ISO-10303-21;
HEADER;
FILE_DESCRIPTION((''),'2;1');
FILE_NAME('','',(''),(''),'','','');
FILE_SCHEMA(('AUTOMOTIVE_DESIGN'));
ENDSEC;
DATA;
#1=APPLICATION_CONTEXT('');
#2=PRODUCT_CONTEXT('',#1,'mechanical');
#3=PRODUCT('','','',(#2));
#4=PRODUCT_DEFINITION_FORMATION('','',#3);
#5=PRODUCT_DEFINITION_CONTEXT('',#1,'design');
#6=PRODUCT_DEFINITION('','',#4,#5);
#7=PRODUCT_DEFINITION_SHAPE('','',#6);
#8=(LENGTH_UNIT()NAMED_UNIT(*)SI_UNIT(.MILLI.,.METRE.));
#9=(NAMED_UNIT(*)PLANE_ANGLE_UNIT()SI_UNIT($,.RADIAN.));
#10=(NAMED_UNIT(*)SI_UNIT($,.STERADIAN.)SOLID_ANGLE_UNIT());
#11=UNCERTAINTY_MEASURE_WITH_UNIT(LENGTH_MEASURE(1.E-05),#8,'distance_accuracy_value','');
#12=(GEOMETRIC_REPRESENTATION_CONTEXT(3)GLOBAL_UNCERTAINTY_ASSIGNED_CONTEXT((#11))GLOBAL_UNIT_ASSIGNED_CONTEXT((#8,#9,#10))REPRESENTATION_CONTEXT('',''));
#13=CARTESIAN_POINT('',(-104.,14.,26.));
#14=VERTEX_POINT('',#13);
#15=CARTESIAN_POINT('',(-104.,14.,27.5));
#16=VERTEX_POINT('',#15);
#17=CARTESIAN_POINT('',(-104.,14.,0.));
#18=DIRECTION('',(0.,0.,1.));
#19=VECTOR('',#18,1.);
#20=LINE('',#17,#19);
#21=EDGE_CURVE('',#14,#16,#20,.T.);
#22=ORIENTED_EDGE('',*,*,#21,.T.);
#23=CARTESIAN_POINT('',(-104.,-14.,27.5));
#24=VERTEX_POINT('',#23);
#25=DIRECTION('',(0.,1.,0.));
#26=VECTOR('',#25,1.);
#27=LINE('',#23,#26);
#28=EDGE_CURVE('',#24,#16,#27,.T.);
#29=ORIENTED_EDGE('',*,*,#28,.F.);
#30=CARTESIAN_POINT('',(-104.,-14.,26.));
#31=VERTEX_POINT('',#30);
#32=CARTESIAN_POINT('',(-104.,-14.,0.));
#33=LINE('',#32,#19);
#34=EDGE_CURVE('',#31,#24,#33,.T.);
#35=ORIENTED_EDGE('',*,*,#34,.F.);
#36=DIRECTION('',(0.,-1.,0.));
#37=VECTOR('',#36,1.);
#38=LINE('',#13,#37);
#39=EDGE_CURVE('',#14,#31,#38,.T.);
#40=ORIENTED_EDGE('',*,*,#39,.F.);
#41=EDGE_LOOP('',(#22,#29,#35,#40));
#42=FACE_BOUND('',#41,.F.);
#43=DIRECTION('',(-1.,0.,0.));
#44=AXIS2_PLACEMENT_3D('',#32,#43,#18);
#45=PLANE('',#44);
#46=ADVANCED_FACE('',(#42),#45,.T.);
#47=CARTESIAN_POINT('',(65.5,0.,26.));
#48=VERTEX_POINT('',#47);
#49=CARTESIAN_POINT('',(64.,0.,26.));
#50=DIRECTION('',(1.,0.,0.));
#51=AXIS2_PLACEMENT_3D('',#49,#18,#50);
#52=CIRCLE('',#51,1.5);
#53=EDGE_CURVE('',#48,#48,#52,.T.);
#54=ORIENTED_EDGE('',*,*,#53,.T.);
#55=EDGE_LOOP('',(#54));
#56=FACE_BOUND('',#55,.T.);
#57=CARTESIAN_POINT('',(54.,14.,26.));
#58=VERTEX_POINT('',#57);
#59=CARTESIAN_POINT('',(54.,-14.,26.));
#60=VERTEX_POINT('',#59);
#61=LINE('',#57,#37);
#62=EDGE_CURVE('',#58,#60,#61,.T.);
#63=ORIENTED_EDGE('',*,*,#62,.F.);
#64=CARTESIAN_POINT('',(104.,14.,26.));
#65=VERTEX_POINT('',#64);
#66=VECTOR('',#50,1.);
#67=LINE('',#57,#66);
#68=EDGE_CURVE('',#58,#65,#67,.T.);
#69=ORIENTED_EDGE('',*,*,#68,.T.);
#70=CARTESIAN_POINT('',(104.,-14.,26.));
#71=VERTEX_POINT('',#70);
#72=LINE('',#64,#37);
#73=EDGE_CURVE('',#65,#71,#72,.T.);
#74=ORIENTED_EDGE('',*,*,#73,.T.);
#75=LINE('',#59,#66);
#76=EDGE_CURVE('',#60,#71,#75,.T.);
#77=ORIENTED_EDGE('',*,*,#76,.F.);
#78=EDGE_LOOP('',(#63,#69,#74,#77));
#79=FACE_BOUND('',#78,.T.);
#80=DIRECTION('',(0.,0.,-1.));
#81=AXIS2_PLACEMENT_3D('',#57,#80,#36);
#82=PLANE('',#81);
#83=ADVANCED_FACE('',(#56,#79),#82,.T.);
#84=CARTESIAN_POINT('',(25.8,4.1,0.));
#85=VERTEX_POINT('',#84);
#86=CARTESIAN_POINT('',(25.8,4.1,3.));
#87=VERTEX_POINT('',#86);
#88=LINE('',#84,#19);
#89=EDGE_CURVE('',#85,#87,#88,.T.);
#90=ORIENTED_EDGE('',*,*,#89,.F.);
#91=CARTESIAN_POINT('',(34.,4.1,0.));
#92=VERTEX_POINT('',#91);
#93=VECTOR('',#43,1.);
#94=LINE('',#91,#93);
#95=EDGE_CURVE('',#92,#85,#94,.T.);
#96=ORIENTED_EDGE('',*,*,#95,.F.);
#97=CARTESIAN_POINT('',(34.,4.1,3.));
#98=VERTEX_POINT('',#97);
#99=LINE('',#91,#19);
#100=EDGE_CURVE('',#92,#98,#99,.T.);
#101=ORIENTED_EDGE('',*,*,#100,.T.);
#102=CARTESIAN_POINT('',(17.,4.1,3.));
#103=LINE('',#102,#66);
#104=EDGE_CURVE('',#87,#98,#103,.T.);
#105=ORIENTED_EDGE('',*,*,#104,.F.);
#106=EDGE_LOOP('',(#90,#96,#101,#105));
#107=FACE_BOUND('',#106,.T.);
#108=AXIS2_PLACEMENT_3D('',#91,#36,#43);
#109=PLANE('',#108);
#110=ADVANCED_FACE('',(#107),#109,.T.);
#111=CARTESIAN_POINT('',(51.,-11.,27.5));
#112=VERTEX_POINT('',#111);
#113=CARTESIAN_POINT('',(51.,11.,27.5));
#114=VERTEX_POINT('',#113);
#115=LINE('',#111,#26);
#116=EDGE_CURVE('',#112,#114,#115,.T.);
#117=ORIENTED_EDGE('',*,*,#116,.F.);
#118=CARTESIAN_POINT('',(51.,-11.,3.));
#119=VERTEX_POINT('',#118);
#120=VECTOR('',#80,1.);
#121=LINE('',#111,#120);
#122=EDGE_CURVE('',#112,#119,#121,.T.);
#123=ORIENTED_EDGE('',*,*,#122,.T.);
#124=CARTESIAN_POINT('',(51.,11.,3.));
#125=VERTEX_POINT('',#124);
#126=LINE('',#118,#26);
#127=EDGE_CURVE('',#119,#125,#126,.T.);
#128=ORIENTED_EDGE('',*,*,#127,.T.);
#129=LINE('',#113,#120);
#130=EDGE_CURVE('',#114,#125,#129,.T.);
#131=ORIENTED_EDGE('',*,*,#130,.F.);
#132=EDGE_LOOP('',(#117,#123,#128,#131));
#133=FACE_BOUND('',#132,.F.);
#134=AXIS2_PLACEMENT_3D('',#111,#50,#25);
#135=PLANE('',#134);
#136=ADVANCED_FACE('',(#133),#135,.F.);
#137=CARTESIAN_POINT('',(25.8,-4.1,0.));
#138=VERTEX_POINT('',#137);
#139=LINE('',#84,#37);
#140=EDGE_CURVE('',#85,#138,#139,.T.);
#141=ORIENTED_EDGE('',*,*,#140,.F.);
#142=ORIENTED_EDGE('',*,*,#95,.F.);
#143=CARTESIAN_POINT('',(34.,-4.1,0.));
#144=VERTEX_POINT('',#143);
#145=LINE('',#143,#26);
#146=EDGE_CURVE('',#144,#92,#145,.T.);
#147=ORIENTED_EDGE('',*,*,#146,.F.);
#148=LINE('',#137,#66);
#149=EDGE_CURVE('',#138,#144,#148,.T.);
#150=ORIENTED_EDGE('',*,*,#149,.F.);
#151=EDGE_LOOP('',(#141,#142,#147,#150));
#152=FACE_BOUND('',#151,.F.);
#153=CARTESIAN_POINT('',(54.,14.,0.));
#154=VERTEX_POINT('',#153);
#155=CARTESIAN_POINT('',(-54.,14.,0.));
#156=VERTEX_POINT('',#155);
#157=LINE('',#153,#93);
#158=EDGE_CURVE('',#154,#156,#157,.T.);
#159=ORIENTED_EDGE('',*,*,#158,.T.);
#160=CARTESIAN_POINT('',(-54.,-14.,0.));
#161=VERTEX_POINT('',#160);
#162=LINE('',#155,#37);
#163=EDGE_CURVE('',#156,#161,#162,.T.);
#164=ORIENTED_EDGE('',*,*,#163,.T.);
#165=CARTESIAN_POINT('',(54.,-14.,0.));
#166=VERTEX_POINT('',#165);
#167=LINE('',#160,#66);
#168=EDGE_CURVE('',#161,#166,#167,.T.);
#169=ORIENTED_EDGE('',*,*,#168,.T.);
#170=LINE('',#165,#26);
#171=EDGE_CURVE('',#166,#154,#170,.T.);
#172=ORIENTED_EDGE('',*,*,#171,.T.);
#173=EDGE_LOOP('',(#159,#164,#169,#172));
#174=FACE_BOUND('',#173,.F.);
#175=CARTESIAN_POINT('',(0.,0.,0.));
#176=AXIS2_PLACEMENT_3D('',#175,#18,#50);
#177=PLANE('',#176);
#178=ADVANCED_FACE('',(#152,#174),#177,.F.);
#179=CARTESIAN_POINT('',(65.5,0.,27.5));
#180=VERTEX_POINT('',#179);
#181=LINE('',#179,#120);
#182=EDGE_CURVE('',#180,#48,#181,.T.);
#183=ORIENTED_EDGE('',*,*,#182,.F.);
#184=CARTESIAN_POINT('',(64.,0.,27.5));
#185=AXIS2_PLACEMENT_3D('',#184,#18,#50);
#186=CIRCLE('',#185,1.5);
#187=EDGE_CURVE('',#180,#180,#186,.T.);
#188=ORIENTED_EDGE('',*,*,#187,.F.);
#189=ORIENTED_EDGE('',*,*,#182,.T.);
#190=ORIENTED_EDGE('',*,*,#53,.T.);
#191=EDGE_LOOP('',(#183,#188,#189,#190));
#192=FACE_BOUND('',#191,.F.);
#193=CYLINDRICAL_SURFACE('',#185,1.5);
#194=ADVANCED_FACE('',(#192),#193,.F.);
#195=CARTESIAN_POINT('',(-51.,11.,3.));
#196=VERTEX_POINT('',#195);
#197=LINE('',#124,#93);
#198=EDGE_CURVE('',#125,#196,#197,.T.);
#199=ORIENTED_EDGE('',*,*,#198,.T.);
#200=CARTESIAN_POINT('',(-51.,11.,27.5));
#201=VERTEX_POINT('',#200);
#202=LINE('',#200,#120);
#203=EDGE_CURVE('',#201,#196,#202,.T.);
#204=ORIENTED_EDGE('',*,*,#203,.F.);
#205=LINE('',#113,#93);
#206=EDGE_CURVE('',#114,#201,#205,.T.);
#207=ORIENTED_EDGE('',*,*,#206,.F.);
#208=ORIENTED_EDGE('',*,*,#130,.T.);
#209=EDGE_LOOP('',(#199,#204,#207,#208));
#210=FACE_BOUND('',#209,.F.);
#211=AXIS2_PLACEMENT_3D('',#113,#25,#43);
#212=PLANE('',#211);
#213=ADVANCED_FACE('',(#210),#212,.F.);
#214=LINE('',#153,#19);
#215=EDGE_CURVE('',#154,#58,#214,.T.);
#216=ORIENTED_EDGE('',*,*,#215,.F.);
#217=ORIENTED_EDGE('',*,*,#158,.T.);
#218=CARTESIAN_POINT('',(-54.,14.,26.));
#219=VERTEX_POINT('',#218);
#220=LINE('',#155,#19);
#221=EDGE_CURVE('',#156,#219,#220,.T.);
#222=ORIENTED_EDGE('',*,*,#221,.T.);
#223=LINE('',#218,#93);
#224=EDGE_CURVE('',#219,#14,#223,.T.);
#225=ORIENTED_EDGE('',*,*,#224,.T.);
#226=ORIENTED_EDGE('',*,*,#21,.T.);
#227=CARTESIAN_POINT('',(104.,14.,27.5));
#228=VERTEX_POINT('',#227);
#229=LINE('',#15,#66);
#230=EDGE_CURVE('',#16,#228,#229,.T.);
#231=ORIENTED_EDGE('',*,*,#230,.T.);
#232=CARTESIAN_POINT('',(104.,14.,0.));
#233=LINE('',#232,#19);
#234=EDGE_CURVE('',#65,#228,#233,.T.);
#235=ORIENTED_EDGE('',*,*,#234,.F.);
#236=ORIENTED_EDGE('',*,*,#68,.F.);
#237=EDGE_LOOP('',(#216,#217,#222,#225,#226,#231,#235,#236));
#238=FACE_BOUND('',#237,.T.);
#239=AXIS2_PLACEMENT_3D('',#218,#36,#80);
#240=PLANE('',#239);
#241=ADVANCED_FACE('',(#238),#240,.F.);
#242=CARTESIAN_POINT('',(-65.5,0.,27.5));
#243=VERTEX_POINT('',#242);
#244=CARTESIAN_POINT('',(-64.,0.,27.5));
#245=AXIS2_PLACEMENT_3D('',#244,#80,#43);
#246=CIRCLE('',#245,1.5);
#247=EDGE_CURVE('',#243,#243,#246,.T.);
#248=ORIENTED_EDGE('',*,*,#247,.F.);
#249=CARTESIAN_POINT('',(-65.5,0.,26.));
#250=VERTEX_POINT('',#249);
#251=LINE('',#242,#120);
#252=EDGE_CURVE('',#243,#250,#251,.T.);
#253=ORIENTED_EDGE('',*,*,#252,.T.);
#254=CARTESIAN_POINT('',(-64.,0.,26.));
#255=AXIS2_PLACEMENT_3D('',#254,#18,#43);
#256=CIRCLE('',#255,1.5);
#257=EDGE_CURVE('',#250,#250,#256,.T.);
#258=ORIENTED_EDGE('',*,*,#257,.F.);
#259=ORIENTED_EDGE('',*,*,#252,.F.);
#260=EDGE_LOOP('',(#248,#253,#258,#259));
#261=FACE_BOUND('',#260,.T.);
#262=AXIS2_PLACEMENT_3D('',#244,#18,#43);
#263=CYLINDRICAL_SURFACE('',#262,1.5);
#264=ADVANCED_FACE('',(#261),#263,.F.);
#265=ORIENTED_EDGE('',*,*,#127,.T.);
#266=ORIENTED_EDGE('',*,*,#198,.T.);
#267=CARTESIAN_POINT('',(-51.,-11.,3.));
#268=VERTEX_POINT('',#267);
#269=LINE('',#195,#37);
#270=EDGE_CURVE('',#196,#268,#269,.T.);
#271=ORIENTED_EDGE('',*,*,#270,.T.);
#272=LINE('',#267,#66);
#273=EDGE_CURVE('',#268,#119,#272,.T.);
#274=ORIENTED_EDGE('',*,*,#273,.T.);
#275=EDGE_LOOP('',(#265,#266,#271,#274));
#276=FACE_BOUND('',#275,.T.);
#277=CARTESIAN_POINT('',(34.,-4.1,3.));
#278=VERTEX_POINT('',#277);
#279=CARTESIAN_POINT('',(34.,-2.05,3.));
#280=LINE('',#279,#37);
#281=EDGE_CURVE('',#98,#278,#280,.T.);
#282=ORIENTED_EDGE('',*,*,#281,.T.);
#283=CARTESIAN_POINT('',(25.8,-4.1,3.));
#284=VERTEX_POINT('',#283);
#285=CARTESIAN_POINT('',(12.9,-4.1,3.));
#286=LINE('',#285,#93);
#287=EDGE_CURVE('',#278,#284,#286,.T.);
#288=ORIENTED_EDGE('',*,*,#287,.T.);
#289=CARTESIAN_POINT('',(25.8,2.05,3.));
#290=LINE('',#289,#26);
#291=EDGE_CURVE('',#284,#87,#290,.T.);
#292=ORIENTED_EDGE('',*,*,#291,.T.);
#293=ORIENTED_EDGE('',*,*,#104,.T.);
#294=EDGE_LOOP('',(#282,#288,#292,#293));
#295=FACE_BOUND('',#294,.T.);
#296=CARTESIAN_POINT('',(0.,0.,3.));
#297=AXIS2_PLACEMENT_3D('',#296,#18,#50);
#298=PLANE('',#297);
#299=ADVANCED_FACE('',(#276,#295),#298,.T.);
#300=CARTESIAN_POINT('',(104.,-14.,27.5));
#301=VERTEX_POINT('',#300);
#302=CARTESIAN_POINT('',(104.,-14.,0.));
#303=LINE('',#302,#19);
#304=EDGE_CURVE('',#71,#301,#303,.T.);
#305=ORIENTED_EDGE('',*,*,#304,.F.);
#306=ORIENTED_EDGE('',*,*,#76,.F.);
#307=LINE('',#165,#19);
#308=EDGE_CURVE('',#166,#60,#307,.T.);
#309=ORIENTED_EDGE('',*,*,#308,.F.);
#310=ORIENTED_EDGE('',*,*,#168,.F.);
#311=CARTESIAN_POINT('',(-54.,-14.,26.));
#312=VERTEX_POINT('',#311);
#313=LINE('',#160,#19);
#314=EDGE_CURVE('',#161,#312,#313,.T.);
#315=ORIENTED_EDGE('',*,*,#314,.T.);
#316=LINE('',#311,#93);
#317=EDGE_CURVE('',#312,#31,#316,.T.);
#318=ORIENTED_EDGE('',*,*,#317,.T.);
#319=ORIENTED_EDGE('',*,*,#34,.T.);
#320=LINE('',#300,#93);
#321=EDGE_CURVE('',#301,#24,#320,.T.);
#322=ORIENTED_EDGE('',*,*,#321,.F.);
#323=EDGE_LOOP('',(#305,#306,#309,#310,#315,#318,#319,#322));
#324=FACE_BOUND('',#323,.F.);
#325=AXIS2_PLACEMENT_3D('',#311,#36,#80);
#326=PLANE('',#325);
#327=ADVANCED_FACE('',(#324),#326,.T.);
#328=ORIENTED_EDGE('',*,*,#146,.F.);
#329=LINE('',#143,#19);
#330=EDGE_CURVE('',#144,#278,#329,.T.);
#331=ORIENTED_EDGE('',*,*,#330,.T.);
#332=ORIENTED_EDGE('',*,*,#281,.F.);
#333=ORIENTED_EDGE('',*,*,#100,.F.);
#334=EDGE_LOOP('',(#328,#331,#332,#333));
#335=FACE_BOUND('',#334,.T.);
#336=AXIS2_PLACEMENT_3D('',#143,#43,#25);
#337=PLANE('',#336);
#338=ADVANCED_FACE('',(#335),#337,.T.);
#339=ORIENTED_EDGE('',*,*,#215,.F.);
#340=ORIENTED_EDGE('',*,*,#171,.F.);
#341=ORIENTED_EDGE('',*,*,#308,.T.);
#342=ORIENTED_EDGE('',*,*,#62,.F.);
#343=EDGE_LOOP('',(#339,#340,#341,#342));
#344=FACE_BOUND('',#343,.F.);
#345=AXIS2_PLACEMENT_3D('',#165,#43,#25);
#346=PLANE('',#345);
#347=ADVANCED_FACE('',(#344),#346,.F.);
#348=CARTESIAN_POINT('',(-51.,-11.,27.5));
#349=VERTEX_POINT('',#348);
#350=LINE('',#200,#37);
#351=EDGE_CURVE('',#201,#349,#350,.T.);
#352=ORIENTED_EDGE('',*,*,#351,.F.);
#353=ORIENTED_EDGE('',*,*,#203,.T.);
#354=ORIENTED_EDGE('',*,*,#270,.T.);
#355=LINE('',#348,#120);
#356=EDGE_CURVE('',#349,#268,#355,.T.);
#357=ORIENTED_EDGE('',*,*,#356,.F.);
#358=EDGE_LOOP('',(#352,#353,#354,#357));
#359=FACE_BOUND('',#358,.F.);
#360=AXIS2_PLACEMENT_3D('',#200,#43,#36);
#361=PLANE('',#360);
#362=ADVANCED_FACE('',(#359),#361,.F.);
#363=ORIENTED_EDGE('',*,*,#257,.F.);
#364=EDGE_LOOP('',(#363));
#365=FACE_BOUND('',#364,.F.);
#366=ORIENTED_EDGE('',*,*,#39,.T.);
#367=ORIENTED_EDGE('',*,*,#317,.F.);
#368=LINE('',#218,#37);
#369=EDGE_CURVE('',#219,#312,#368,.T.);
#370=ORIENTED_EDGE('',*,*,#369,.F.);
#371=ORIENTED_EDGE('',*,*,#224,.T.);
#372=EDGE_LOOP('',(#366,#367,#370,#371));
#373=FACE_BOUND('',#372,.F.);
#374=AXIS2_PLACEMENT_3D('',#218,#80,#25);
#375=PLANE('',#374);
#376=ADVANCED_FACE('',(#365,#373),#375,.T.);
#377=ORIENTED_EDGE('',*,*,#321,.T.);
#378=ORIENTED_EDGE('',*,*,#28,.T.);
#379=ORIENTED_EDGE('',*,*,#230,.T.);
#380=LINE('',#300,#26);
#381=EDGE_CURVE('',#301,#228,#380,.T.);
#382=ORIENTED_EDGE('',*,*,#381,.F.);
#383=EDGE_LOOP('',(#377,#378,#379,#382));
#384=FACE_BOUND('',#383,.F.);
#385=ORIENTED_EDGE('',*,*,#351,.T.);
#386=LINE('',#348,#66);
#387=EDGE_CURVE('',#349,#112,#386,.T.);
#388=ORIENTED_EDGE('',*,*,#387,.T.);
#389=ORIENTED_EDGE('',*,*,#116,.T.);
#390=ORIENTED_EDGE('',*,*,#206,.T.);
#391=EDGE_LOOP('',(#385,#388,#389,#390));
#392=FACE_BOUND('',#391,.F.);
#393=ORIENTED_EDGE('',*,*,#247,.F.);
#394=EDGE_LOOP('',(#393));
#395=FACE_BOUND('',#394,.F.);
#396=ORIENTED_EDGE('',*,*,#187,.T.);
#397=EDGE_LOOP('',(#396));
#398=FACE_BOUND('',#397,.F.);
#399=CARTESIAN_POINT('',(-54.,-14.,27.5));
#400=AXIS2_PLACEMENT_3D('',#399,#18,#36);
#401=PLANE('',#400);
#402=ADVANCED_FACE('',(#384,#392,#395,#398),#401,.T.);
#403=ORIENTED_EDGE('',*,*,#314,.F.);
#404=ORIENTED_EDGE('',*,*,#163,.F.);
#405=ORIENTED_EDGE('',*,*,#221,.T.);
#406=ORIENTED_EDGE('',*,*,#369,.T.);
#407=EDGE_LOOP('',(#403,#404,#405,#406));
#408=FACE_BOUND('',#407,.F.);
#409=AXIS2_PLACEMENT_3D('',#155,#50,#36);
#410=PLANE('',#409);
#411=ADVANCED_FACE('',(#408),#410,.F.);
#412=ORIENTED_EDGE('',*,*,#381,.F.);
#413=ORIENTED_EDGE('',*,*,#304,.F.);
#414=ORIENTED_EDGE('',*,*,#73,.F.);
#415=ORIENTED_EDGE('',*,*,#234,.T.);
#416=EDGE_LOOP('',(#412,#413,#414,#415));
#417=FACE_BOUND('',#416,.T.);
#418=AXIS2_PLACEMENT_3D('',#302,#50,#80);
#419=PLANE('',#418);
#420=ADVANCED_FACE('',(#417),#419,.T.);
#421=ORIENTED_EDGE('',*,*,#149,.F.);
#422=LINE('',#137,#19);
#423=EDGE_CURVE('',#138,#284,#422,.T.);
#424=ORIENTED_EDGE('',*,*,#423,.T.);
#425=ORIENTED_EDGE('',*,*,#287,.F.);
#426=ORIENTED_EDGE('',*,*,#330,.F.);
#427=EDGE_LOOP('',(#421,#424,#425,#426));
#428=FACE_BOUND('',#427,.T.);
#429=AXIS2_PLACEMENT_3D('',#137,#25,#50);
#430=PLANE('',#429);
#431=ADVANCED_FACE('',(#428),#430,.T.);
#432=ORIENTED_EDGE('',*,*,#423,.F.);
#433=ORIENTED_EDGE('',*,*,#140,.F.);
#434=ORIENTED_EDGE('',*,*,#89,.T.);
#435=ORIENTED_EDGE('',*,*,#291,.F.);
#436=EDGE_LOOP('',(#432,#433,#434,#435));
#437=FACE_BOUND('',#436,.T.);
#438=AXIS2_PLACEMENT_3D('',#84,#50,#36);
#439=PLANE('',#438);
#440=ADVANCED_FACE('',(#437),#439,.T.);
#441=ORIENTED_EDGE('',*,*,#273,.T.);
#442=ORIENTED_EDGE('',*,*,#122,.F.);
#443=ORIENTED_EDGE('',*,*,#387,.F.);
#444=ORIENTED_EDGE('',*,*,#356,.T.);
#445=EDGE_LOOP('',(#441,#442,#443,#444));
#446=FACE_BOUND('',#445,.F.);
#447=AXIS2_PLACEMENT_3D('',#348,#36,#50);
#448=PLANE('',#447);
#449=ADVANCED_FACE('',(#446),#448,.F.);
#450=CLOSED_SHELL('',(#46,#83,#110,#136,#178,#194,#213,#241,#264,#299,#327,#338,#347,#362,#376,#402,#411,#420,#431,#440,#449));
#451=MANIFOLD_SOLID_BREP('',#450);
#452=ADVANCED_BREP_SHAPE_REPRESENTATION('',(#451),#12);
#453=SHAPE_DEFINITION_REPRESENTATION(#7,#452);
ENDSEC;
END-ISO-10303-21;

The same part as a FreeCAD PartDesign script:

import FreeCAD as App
import Part
import Sketcher
from FreeCAD import Vector

doc = App.newDocument("Part")
body = doc.addObject("PartDesign::Body", "Body")

sketch1 = body.newObject("Sketcher::SketchObject", "Sketch")
sketch1.AttachmentSupport = (doc.getObject("XY_Plane"), [""])
sketch1.MapMode = "FlatFace"
sketch1.addGeometry([
    Part.LineSegment(Vector(-54, 14, 0), Vector(-54, -14, 0)),
    Part.LineSegment(Vector(-54, -14, 0), Vector(54, -14, 0)),
    Part.LineSegment(Vector(54, -14, 0), Vector(54, 14, 0)),
    Part.LineSegment(Vector(54, 14, 0), Vector(-54, 14, 0)),
], False)
sketch1.addConstraint([
    Sketcher.Constraint("Coincident", 0, 2, 1, 1),
    Sketcher.Constraint("Coincident", 1, 2, 2, 1),
    Sketcher.Constraint("Coincident", 2, 2, 3, 1),
    Sketcher.Constraint("Coincident", 3, 2, 0, 1),
    Sketcher.Constraint("Vertical", 0),
    Sketcher.Constraint("Horizontal", 1),
    Sketcher.Constraint("Vertical", 2),
    Sketcher.Constraint("Horizontal", 3),
    Sketcher.Constraint("Symmetric", 0, 2, 2, 2, -1, 1),
    Sketcher.Constraint("DistanceX", 1, 1, 1, 2, 108.0),
    Sketcher.Constraint("DistanceY", 0, 2, 0, 1, 28.0),
])
pad1 = body.newObject("PartDesign::Pad", "Pad")
pad1.Profile = sketch1
pad1.Length = 27.5

sketch2 = body.newObject("Sketcher::SketchObject", "Sketch001")
sketch2.AttachmentSupport = (doc.getObject("XY_Plane"), [""])
sketch2.MapMode = "FlatFace"
sketch2.AttachmentOffset = App.Placement(Vector(0, 0, 27.5), App.Rotation())
sketch2.addGeometry([
    Part.LineSegment(Vector(-51, 11, 0), Vector(-51, -11, 0)),
    Part.LineSegment(Vector(-51, -11, 0), Vector(51, -11, 0)),
    Part.LineSegment(Vector(51, -11, 0), Vector(51, 11, 0)),
    Part.LineSegment(Vector(51, 11, 0), Vector(-51, 11, 0)),
], False)
sketch2.addConstraint([
    Sketcher.Constraint("Coincident", 0, 2, 1, 1),
    Sketcher.Constraint("Coincident", 1, 2, 2, 1),
    Sketcher.Constraint("Coincident", 2, 2, 3, 1),
    Sketcher.Constraint("Coincident", 3, 2, 0, 1),
    Sketcher.Constraint("Vertical", 0),
    Sketcher.Constraint("Horizontal", 1),
    Sketcher.Constraint("Vertical", 2),
    Sketcher.Constraint("Horizontal", 3),
    Sketcher.Constraint("Symmetric", 0, 2, 2, 2, -1, 1),
    Sketcher.Constraint("DistanceX", 1, 1, 1, 2, 102.0),
    Sketcher.Constraint("DistanceY", 0, 2, 0, 1, 22.0),
])
pocket1 = body.newObject("PartDesign::Pocket", "Pocket")
pocket1.Profile = sketch2
pocket1.Length = 24.5

sketch3 = body.newObject("Sketcher::SketchObject", "Sketch002")
sketch3.AttachmentSupport = (doc.getObject("YZ_Plane"), [""])
sketch3.MapMode = "FlatFace"
sketch3.AttachmentOffset = App.Placement(Vector(0, 0, 54), App.Rotation())
sketch3.addGeometry([
    Part.LineSegment(Vector(-14, 26, 0), Vector(14, 26, 0)),
    Part.LineSegment(Vector(14, 26, 0), Vector(14, 27.5, 0)),
    Part.LineSegment(Vector(14, 27.5, 0), Vector(-14, 27.5, 0)),
    Part.LineSegment(Vector(-14, 27.5, 0), Vector(-14, 26, 0)),
], False)
sketch3.addConstraint([
    Sketcher.Constraint("Coincident", 0, 2, 1, 1),
    Sketcher.Constraint("Coincident", 1, 2, 2, 1),
    Sketcher.Constraint("Coincident", 2, 2, 3, 1),
    Sketcher.Constraint("Coincident", 3, 2, 0, 1),
    Sketcher.Constraint("Horizontal", 0),
    Sketcher.Constraint("Vertical", 1),
    Sketcher.Constraint("Horizontal", 2),
    Sketcher.Constraint("Vertical", 3),
    Sketcher.Constraint("DistanceY", 1, 1, 1, 2, 1.5),
    Sketcher.Constraint("DistanceX", 0, 1, 0, 2, 28.0),
    Sketcher.Constraint("DistanceX", -1, 1, 0, 2, 14.0),
    Sketcher.Constraint("DistanceY", -1, 1, 0, 2, 26.0),
])
pad2 = body.newObject("PartDesign::Pad", "Pad001")
pad2.Profile = sketch3
pad2.Length = 50

sketch4 = body.newObject("Sketcher::SketchObject", "Sketch003")
sketch4.AttachmentSupport = (doc.getObject("XY_Plane"), [""])
sketch4.MapMode = "FlatFace"
sketch4.AttachmentOffset = App.Placement(Vector(0, 0, 27.5), App.Rotation())
sketch4.addGeometry(Part.Circle(Vector(64, 0, 0), Vector(0, 0, 1), 1.5), False)
sketch4.addConstraint([
    Sketcher.Constraint("PointOnObject", 0, 3, -1),
    Sketcher.Constraint("Diameter", 0, 3.0),
    Sketcher.Constraint("DistanceX", -1, 1, 0, 3, 64.0),
])
pocket2 = body.newObject("PartDesign::Pocket", "Pocket001")
pocket2.Profile = sketch4
pocket2.Length = 50
doc.recompute()

mirrored = body.newObject("PartDesign::Mirrored", "Mirrored")
mirrored.Originals = [pad2, pocket2]
mirrored.MirrorPlane = (doc.getObject("YZ_Plane"), [""])
body.Tip = mirrored

sketch5 = body.newObject("Sketcher::SketchObject", "Sketch004")
sketch5.AttachmentSupport = (doc.getObject("XY_Plane"), [""])
sketch5.MapMode = "FlatFace"
sketch5.addGeometry([
    Part.LineSegment(Vector(26, 4, 0), Vector(34, 4, 0)),
    Part.LineSegment(Vector(34, 4, 0), Vector(34, -4, 0)),
    Part.LineSegment(Vector(34, -4, 0), Vector(26, -4, 0)),
    Part.LineSegment(Vector(26, -4, 0), Vector(26, 4, 0)),
], False)
sketch5.addConstraint([
    Sketcher.Constraint("Coincident", 0, 2, 1, 1),
    Sketcher.Constraint("Coincident", 1, 2, 2, 1),
    Sketcher.Constraint("Coincident", 2, 2, 3, 1),
    Sketcher.Constraint("Coincident", 3, 2, 0, 1),
    Sketcher.Constraint("Horizontal", 0),
    Sketcher.Constraint("Vertical", 1),
    Sketcher.Constraint("Horizontal", 2),
    Sketcher.Constraint("Vertical", 3),
    Sketcher.Constraint("Equal", 2, 1),
    Sketcher.Constraint("DistanceX", 0, 1, 0, 2, 8.2),
    Sketcher.Constraint("DistanceX", -1, 1, 0, 2, 34.0),
    Sketcher.Constraint("DistanceY", -1, 1, 0, 2, 4.1),
])
pocket3 = body.newObject("PartDesign::Pocket", "Pocket002")
pocket3.Profile = sketch5
pocket3.Length = 10
pocket3.Reversed = True

doc.recompute()
